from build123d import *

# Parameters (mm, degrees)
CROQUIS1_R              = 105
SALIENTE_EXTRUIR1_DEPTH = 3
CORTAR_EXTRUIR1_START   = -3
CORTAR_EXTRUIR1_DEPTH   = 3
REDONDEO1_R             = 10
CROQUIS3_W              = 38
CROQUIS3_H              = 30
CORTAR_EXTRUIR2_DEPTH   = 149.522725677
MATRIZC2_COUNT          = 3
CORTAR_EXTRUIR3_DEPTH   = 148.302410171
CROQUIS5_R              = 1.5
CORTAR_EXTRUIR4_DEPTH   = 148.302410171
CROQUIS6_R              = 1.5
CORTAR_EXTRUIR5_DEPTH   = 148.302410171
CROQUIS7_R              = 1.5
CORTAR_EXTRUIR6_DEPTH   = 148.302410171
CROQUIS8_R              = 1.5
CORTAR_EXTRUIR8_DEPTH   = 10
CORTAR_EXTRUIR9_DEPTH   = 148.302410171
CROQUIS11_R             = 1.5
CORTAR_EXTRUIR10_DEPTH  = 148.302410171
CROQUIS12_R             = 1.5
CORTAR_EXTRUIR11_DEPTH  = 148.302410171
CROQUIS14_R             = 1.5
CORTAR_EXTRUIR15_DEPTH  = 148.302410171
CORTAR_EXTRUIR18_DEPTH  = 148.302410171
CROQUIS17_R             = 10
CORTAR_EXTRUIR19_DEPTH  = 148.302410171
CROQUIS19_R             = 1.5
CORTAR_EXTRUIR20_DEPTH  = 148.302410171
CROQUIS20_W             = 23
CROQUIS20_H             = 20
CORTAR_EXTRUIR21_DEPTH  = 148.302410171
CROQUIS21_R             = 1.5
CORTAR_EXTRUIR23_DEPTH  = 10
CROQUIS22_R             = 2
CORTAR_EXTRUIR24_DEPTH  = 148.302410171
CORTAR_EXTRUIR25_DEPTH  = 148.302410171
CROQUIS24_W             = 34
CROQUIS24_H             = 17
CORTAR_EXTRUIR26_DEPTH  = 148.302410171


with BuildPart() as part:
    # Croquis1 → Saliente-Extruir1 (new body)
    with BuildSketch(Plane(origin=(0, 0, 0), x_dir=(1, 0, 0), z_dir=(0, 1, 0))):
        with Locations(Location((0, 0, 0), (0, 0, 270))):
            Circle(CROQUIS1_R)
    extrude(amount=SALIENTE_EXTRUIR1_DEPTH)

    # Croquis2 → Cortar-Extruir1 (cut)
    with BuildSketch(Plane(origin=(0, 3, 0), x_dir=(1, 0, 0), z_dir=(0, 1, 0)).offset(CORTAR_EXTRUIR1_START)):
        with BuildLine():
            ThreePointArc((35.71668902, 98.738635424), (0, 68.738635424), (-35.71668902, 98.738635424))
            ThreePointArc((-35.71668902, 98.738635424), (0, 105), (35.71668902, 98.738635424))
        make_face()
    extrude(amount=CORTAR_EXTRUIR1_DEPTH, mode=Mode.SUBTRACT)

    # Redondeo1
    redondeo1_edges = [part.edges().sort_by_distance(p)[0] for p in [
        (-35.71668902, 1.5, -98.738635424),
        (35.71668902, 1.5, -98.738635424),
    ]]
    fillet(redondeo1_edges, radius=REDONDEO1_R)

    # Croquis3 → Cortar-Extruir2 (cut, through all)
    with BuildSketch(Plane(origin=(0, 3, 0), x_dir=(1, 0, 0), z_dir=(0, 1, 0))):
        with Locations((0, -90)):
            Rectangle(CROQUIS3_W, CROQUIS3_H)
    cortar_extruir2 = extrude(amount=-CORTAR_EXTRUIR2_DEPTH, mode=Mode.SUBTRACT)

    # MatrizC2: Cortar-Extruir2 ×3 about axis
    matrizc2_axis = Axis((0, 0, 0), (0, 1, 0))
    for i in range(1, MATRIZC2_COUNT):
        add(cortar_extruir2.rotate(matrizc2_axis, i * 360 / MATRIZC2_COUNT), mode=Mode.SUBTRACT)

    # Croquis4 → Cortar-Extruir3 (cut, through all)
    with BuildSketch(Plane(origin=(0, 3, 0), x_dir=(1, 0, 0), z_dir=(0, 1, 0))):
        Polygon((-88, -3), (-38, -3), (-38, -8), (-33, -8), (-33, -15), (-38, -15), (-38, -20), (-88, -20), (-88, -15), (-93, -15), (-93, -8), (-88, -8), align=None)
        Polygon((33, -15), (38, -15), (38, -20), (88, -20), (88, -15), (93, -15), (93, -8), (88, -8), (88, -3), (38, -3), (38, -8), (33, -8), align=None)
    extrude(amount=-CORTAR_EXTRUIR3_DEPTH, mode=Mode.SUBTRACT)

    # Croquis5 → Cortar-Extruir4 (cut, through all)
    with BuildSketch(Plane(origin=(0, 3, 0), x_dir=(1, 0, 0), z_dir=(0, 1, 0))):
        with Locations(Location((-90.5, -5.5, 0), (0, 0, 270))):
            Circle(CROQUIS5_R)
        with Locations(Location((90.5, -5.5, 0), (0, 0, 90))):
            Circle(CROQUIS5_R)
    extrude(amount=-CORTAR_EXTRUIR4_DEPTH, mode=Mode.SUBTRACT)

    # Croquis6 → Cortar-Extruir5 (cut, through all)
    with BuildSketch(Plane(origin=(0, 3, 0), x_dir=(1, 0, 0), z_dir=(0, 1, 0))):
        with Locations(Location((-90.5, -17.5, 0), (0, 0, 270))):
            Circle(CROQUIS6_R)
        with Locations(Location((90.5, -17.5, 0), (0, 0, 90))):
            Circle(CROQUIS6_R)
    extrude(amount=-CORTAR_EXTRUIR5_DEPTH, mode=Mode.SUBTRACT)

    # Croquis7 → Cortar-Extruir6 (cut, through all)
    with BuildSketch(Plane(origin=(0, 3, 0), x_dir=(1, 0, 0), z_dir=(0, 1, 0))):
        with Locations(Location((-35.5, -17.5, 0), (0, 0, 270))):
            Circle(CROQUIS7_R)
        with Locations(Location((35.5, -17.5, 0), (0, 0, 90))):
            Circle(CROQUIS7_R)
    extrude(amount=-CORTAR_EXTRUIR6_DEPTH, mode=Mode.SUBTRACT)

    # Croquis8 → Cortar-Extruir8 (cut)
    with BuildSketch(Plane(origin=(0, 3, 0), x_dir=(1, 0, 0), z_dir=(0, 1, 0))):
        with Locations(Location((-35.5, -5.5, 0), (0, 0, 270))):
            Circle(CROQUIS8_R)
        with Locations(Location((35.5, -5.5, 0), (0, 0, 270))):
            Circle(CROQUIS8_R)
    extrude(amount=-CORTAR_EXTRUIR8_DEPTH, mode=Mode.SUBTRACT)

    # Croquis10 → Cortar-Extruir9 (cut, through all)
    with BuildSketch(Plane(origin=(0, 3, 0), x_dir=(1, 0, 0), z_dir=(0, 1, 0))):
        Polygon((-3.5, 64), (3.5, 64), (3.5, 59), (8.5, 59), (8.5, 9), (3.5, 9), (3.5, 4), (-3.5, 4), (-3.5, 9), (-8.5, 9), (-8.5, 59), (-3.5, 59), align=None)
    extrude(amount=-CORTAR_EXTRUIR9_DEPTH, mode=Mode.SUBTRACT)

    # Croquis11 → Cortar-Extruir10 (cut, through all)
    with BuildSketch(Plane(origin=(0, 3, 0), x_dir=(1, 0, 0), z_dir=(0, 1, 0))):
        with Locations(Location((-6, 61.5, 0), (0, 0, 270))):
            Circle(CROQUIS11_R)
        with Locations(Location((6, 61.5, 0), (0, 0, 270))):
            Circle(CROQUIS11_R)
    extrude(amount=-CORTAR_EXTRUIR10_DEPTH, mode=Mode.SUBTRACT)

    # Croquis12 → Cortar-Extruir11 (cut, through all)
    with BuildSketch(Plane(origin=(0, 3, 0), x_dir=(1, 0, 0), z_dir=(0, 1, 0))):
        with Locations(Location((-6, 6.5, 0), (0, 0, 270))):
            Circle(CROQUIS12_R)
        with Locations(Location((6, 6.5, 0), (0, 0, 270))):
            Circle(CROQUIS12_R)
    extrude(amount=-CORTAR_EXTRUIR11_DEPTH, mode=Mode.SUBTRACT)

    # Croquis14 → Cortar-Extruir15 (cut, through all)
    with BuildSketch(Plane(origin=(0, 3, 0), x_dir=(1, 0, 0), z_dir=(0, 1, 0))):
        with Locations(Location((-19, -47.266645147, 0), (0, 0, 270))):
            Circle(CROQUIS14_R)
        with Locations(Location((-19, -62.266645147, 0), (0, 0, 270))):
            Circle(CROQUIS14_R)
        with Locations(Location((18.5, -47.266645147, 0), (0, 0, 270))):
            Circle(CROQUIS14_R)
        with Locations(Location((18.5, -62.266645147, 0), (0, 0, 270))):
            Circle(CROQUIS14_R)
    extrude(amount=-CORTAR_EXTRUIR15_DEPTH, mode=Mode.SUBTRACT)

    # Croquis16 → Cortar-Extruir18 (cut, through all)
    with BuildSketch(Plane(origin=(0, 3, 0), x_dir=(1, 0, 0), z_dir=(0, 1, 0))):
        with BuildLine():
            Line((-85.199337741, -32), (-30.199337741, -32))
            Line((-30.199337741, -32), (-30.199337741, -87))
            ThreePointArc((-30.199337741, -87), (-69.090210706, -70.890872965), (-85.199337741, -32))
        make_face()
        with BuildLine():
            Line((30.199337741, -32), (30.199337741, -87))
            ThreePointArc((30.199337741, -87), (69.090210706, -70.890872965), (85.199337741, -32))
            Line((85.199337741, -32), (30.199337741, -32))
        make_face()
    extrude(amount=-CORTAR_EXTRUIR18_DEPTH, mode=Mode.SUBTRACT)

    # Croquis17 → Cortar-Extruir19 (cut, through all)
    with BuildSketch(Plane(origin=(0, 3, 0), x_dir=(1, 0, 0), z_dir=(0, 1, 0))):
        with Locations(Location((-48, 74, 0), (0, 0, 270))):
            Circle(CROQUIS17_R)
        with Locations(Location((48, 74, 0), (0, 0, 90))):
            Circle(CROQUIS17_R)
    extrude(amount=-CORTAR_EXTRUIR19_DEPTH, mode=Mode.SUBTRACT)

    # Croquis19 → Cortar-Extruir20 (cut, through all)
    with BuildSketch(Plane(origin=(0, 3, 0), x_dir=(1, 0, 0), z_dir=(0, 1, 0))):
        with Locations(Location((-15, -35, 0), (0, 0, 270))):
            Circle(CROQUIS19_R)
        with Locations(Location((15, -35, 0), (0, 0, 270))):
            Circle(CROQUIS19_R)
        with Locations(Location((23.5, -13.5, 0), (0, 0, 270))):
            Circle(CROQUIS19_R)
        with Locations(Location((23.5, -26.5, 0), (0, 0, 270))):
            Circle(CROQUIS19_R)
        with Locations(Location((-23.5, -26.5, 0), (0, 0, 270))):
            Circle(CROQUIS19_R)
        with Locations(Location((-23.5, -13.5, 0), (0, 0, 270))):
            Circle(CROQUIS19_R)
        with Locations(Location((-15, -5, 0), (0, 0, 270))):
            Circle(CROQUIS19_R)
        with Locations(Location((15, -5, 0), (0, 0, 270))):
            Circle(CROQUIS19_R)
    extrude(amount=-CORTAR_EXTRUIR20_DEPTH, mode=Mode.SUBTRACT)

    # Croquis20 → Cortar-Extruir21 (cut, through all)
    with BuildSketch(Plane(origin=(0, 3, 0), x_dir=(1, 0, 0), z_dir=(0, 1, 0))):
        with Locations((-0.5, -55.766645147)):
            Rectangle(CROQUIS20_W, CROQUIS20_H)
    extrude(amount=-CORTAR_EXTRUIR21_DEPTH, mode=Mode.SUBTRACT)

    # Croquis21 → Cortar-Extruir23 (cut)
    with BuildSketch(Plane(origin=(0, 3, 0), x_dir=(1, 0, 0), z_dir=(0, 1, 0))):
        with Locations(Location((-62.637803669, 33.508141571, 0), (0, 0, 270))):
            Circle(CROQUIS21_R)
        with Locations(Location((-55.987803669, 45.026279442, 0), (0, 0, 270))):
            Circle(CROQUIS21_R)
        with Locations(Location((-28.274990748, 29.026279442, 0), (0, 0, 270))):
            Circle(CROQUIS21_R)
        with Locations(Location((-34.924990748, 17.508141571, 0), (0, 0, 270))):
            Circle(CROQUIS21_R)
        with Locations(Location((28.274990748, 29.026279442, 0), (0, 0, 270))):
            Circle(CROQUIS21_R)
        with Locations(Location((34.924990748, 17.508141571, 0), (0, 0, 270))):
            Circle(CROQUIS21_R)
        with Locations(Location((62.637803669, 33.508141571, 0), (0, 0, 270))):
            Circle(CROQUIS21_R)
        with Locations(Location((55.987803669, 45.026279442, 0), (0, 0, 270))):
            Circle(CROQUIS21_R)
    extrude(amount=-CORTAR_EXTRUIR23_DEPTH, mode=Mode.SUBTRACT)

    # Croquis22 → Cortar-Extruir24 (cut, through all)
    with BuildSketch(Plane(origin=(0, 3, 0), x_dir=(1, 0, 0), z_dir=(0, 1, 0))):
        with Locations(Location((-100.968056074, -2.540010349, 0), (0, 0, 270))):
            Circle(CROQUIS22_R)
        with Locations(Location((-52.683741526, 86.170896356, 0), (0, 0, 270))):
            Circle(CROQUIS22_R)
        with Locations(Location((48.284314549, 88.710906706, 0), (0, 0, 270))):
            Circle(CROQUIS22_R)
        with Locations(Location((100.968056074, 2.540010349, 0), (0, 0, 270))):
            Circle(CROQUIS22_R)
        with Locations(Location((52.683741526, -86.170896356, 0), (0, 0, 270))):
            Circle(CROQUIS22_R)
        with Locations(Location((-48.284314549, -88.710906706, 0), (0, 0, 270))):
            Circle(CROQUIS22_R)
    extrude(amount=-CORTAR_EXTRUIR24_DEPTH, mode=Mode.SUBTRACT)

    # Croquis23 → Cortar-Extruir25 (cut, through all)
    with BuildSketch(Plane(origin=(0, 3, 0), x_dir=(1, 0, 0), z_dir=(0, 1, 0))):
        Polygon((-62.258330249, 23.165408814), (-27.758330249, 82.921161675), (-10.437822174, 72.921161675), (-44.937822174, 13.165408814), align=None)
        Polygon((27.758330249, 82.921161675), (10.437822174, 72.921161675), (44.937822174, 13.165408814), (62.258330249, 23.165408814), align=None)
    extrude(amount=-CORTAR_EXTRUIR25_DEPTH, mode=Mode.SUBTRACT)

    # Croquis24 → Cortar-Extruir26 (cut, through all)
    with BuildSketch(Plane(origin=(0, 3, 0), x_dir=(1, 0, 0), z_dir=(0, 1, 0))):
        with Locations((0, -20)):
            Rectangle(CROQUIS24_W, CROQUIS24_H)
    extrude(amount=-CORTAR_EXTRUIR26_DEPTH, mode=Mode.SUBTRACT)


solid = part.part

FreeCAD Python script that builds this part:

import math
import FreeCAD as App
import Part
import Sketcher
from FreeCAD import Vector
Q = App.Units.Quantity


def edges_at(feature, points):
    """Names of the edges that pass closest to the given points."""
    edges = feature.Shape.Edges
    near = lambda p: min(range(len(edges)), key=lambda i: edges[i].distToShape(Part.Vertex(*p))[0])
    return sorted({f"Edge{near(p) + 1}" for p in points})


def add_polygon(sketch, points):
    """Adds a closed chain of lines whose ends are joined by coincident constraints."""
    first, n = sketch.GeometryCount, len(points)
    for a, b in zip(points, points[1:] + points[:1]):
        sketch.addGeometry(Part.LineSegment(App.Vector(*a, 0), App.Vector(*b, 0)), False)
    for i in range(n):
        sketch.addConstraint(Sketcher.Constraint("Coincident", first + i, 2, first + (i + 1) % n, 1))

doc = App.newDocument("Part")
body = doc.addObject("PartDesign::Body", "Body")

sketch1 = body.newObject("Sketcher::SketchObject", "Sketch")
sketch1.AttachmentSupport = (doc.getObject("XZ_Plane"), [""])
sketch1.MapMode = "FlatFace"
sketch1.addGeometry(Part.Circle(Vector(0, 0, 0), Vector(0, 0, 1), 105), False)
sketch1.addConstraint(Sketcher.Constraint("Coincident", 0, 3, -1, 1))
sketch1.addConstraint(Sketcher.Constraint("Diameter", 0, Q("210 mm")))
pad1 = body.newObject("PartDesign::Pad", "Pad")
pad1.Profile = sketch1
pad1.Length = 3
pad1.Reversed = True

sketch2 = body.newObject("Sketcher::SketchObject", "Sketch001")
sketch2.AttachmentSupport = (doc.getObject("XZ_Plane"), [""])
sketch2.MapMode = "FlatFace"
sketch2.addGeometry(Part.ArcOfCircle(Part.Circle(Vector(0, -105, 0), Vector(0, 0, 1), 36), math.radians(10), math.radians(170)), False)
sketch2.addGeometry(Part.ArcOfCircle(Part.Circle(Vector(0, 0, 0), Vector(0, 0, 1), 105), math.radians(-110), math.radians(-70)), False)
sketch2.addConstraint(Sketcher.Constraint("Coincident", 0, 1, 1, 2))
sketch2.addConstraint(Sketcher.Constraint("Coincident", 1, 1, 0, 2))
sketch2.addConstraint(Sketcher.Constraint("Coincident", 1, 3, -1, 1))
sketch2.addConstraint(Sketcher.Constraint("PointOnObject", 0, 3, -2))
sketch2.addConstraint(Sketcher.Constraint("Radius", 1, Q("105 mm")))
sketch2.addConstraint(Sketcher.Constraint("DistanceY", 0, 3, -1, 1, Q("105 mm")))
sketch2.addConstraint(Sketcher.Constraint("Radius", 0, Q("36.261365 mm")))
pocket1 = body.newObject("PartDesign::Pocket", "Pocket")
pocket1.Profile = sketch2
pocket1.Length = 3
doc.recompute()

fillet = body.newObject("PartDesign::Fillet", "Fillet")
fillet.Base = (pocket1, edges_at(pocket1, [(-35.717, 1.5, -98.739), (35.717, 1.5, -98.739)]))
fillet.Radius = 10

sketch3 = body.newObject("Sketcher::SketchObject", "Sketch002")
sketch3.AttachmentSupport = (doc.getObject("XZ_Plane"), [""])
sketch3.MapMode = "FlatFace"
sketch3.AttachmentOffset = App.Placement(Vector(0, 0, -3), App.Rotation())
add_polygon(sketch3, [(-19, 75), (-19, 105), (19, 105), (19, 75)])
sketch3.addConstraint(Sketcher.Constraint("Vertical", 0))
sketch3.addConstraint(Sketcher.Constraint("Horizontal", 1))
sketch3.addConstraint(Sketcher.Constraint("Vertical", 2))
sketch3.addConstraint(Sketcher.Constraint("Horizontal", 3))
sketch3.addConstraint(Sketcher.Constraint("DistanceX", 1, 1, 1, 2, Q("38 mm")))
sketch3.addConstraint(Sketcher.Constraint("DistanceY", 0, 1, 0, 2, Q("30 mm")))
sketch3.addConstraint(Sketcher.Constraint("DistanceX", 0, 2, -1, 1, Q("19 mm")))
sketch3.addConstraint(Sketcher.Constraint("DistanceY", -1, 1, 0, 2, Q("105 mm")))
pocket2 = body.newObject("PartDesign::Pocket", "Pocket001")
pocket2.Profile = sketch3
pocket2.Type = "ThroughAll"
pocket2.Reversed = True
doc.recompute()

polarpattern = body.newObject("PartDesign::PolarPattern", "PolarPattern")
polarpattern.Originals = [pocket2]
polarpattern.Axis = (doc.getObject("Y_Axis"), [""])
polarpattern.Angle = 360
polarpattern.Occurrences = 3
body.Tip = polarpattern

sketch4 = body.newObject("Sketcher::SketchObject", "Sketch003")
sketch4.AttachmentSupport = (doc.getObject("XZ_Plane"), [""])
sketch4.MapMode = "FlatFace"
sketch4.AttachmentOffset = App.Placement(Vector(0, 0, -3), App.Rotation())
add_polygon(sketch4, [(-38, 3), (-88, 3), (-88, 8), (-93, 8), (-93, 15), (-88, 15), (-88, 20), (-38, 20), (-38, 15), (-33, 15), (-33, 8), (-38, 8)])
add_polygon(sketch4, [(33, 15), (38, 15), (38, 20), (88, 20), (88, 15), (93, 15), (93, 8), (88, 8), (88, 3), (38, 3), (38, 8), (33, 8)])
sketch4.addConstraint(Sketcher.Constraint("Horizontal", 0))
sketch4.addConstraint(Sketcher.Constraint("Vertical", 1))
sketch4.addConstraint(Sketcher.Constraint("Horizontal", 2))
sketch4.addConstraint(Sketcher.Constraint("Vertical", 3))
sketch4.addConstraint(Sketcher.Constraint("Horizontal", 4))
sketch4.addConstraint(Sketcher.Constraint("Vertical", 5))
sketch4.addConstraint(Sketcher.Constraint("Horizontal", 6))
sketch4.addConstraint(Sketcher.Constraint("Vertical", 7))
sketch4.addConstraint(Sketcher.Constraint("Horizontal", 8))
sketch4.addConstraint(Sketcher.Constraint("Vertical", 9))
sketch4.addConstraint(Sketcher.Constraint("Horizontal", 10))
sketch4.addConstraint(Sketcher.Constraint("Vertical", 11))
sketch4.addConstraint(Sketcher.Constraint("Horizontal", 12))
sketch4.addConstraint(Sketcher.Constraint("Vertical", 13))
sketch4.addConstraint(Sketcher.Constraint("Horizontal", 14))
sketch4.addConstraint(Sketcher.Constraint("Vertical", 15))
sketch4.addConstraint(Sketcher.Constraint("Horizontal", 16))
sketch4.addConstraint(Sketcher.Constraint("Vertical", 17))
sketch4.addConstraint(Sketcher.Constraint("Horizontal", 18))
sketch4.addConstraint(Sketcher.Constraint("Vertical", 19))
sketch4.addConstraint(Sketcher.Constraint("Horizontal", 20))
sketch4.addConstraint(Sketcher.Constraint("Vertical", 21))
sketch4.addConstraint(Sketcher.Constraint("Horizontal", 22))
sketch4.addConstraint(Sketcher.Constraint("Vertical", 23))
sketch4.addConstraint(Sketcher.Constraint("Symmetric", 7, 2, 12, 2, -2))
sketch4.addConstraint(Sketcher.Constraint("Symmetric", 5, 2, 14, 2, -2))
sketch4.addConstraint(Sketcher.Constraint("Symmetric", 3, 2, 16, 2, -2))
sketch4.addConstraint(Sketcher.Constraint("Symmetric", 1, 2, 18, 2, -2))
sketch4.addConstraint(Sketcher.Constraint("Symmetric", 11, 2, 20, 2, -2))
sketch4.addConstraint(Sketcher.Constraint("Symmetric", 9, 2, 22, 2, -2))
sketch4.addConstraint(Sketcher.Constraint("Horizontal", 4, 2, 7, 2))
sketch4.addConstraint(Sketcher.Constraint("Horizontal", 2, 2, 9, 2))
sketch4.addConstraint(Sketcher.Constraint("Vertical", 1, 2, 4, 2))
sketch4.addConstraint(Sketcher.Constraint("Vertical", 7, 2, 10, 2))
sketch4.addConstraint(Sketcher.Constraint("Equal", 4, 8))
sketch4.addConstraint(Sketcher.Constraint("Equal", 22, 1))
sketch4.addConstraint(Sketcher.Constraint("Equal", 1, 5))
sketch4.addConstraint(Sketcher.Constraint("DistanceX", 0, 2, 0, 1, Q("50 mm")))
sketch4.addConstraint(Sketcher.Constraint("DistanceX", 2, 2, 2, 1, Q("5 mm")))
sketch4.addConstraint(Sketcher.Constraint("DistanceY", 3, 1, 3, 2, Q("7 mm")))
sketch4.addConstraint(Sketcher.Constraint("DistanceX", 0, 2, -1, 1, Q("88 mm")))
sketch4.addConstraint(Sketcher.Constraint("DistanceY", -1, 1, 0, 2, Q("3 mm")))
pocket3 = body.newObject("PartDesign::Pocket", "Pocket002")
pocket3.Profile = sketch4
pocket3.Type = "ThroughAll"
pocket3.Reversed = True

sketch5 = body.newObject("Sketcher::SketchObject", "Sketch004")
sketch5.AttachmentSupport = (doc.getObject("XZ_Plane"), [""])
sketch5.MapMode = "FlatFace"
sketch5.AttachmentOffset = App.Placement(Vector(0, 0, -3), App.Rotation())
sketch5.addGeometry(Part.Circle(Vector(-90.5, 5.5, 0), Vector(0, 0, 1), 1.5), False)
sketch5.addGeometry(Part.Circle(Vector(90.5, 5.5, 0), Vector(0, 0, 1), 1.5), False)
sketch5.addConstraint(Sketcher.Constraint("Equal", 0, 1))
sketch5.addConstraint(Sketcher.Constraint("Symmetric", 0, 3, 1, 3, -2))
sketch5.addConstraint(Sketcher.Constraint("Diameter", 0, Q("3 mm")))
sketch5.addConstraint(Sketcher.Constraint("DistanceX", 0, 3, 1, 3, Q("181 mm")))
sketch5.addConstraint(Sketcher.Constraint("DistanceY", -1, 1, 0, 3, Q("5.5 mm")))
pocket4 = body.newObject("PartDesign::Pocket", "Pocket003")
pocket4.Profile = sketch5
pocket4.Type = "ThroughAll"
pocket4.Reversed = True

sketch6 = body.newObject("Sketcher::SketchObject", "Sketch005")
sketch6.AttachmentSupport = (doc.getObject("XZ_Plane"), [""])
sketch6.MapMode = "FlatFace"
sketch6.AttachmentOffset = App.Placement(Vector(0, 0, -3), App.Rotation())
sketch6.addGeometry(Part.Circle(Vector(-90.5, 17.5, 0), Vector(0, 0, 1), 1.5), False)
sketch6.addGeometry(Part.Circle(Vector(90.5, 17.5, 0), Vector(0, 0, 1), 1.5), False)
sketch6.addConstraint(Sketcher.Constraint("Equal", 0, 1))
sketch6.addConstraint(Sketcher.Constraint("Symmetric", 0, 3, 1, 3, -2))
sketch6.addConstraint(Sketcher.Constraint("Diameter", 0, Q("3 mm")))
sketch6.addConstraint(Sketcher.Constraint("DistanceX", 0, 3, 1, 3, Q("181 mm")))
sketch6.addConstraint(Sketcher.Constraint("DistanceY", -1, 1, 0, 3, Q("17.5 mm")))
pocket5 = body.newObject("PartDesign::Pocket", "Pocket004")
pocket5.Profile = sketch6
pocket5.Type = "ThroughAll"
pocket5.Reversed = True

sketch7 = body.newObject("Sketcher::SketchObject", "Sketch006")
sketch7.AttachmentSupport = (doc.getObject("XZ_Plane"), [""])
sketch7.MapMode = "FlatFace"
sketch7.AttachmentOffset = App.Placement(Vector(0, 0, -3), App.Rotation())
sketch7.addGeometry(Part.Circle(Vector(-35.5, 17.5, 0), Vector(0, 0, 1), 1.5), False)
sketch7.addGeometry(Part.Circle(Vector(35.5, 17.5, 0), Vector(0, 0, 1), 1.5), False)
sketch7.addConstraint(Sketcher.Constraint("Equal", 0, 1))
sketch7.addConstraint(Sketcher.Constraint("Symmetric", 0, 3, 1, 3, -2))
sketch7.addConstraint(Sketcher.Constraint("Diameter", 0, Q("3 mm")))
sketch7.addConstraint(Sketcher.Constraint("DistanceX", 0, 3, 1, 3, Q("71 mm")))
sketch7.addConstraint(Sketcher.Constraint("DistanceY", -1, 1, 0, 3, Q("17.5 mm")))
pocket6 = body.newObject("PartDesign::Pocket", "Pocket005")
pocket6.Profile = sketch7
pocket6.Type = "ThroughAll"
pocket6.Reversed = True

sketch8 = body.newObject("Sketcher::SketchObject", "Sketch007")
sketch8.AttachmentSupport = (doc.getObject("XZ_Plane"), [""])
sketch8.MapMode = "FlatFace"
sketch8.AttachmentOffset = App.Placement(Vector(0, 0, -3), App.Rotation())
sketch8.addGeometry(Part.Circle(Vector(-35.5, 5.5, 0), Vector(0, 0, 1), 1.5), False)
sketch8.addGeometry(Part.Circle(Vector(35.5, 5.5, 0), Vector(0, 0, 1), 1.5), False)
sketch8.addConstraint(Sketcher.Constraint("Equal", 0, 1))
sketch8.addConstraint(Sketcher.Constraint("Symmetric", 0, 3, 1, 3, -2))
sketch8.addConstraint(Sketcher.Constraint("Diameter", 0, Q("3 mm")))
sketch8.addConstraint(Sketcher.Constraint("DistanceX", 0, 3, 1, 3, Q("71 mm")))
sketch8.addConstraint(Sketcher.Constraint("DistanceY", -1, 1, 0, 3, Q("5.5 mm")))
pocket7 = body.newObject("PartDesign::Pocket", "Pocket006")
pocket7.Profile = sketch8
pocket7.Length = 10
pocket7.Reversed = True

sketch9 = body.newObject("Sketcher::SketchObject", "Sketch008")
sketch9.AttachmentSupport = (doc.getObject("XZ_Plane"), [""])
sketch9.MapMode = "FlatFace"
sketch9.AttachmentOffset = App.Placement(Vector(0, 0, -3), App.Rotation())
add_polygon(sketch9, [(4, -64), (-4, -64), (-4, -59), (-8, -59), (-8, -9), (-4, -9), (-4, -4), (4, -4), (4, -9), (8, -9), (8, -59), (4, -59)])
sketch9.addConstraint(Sketcher.Constraint("Horizontal", 0))
sketch9.addConstraint(Sketcher.Constraint("Vertical", 1))
sketch9.addConstraint(Sketcher.Constraint("Horizontal", 2))
sketch9.addConstraint(Sketcher.Constraint("Vertical", 3))
sketch9.addConstraint(Sketcher.Constraint("Horizontal", 4))
sketch9.addConstraint(Sketcher.Constraint("Vertical", 5))
sketch9.addConstraint(Sketcher.Constraint("Horizontal", 6))
sketch9.addConstraint(Sketcher.Constraint("Vertical", 7))
sketch9.addConstraint(Sketcher.Constraint("Horizontal", 8))
sketch9.addConstraint(Sketcher.Constraint("Vertical", 9))
sketch9.addConstraint(Sketcher.Constraint("Horizontal", 10))
sketch9.addConstraint(Sketcher.Constraint("Vertical", 11))
sketch9.addConstraint(Sketcher.Constraint("Symmetric", 4, 2, 7, 2, -2))
sketch9.addConstraint(Sketcher.Constraint("Symmetric", 2, 2, 9, 2, -2))
sketch9.addConstraint(Sketcher.Constraint("Vertical", 1, 2, 4, 2))
sketch9.addConstraint(Sketcher.Constraint("Vertical", 7, 2, 10, 2))
sketch9.addConstraint(Sketcher.Constraint("Equal", 10, 1))
sketch9.addConstraint(Sketcher.Constraint("Equal", 1, 5))
sketch9.addConstraint(Sketcher.Constraint("DistanceX", 0, 2, 0, 1, Q("7 mm")))
sketch9.addConstraint(Sketcher.Constraint("DistanceX", 2, 2, 2, 1, Q("5 mm")))
sketch9.addConstraint(Sketcher.Constraint("DistanceY", 3, 1, 3, 2, Q("50 mm")))
sketch9.addConstraint(Sketcher.Constraint("DistanceY", 0, 2, -1, 1, Q("64 mm")))
pocket8 = body.newObject("PartDesign::Pocket", "Pocket007")
pocket8.Profile = sketch9
pocket8.Type = "ThroughAll"
pocket8.Reversed = True

sketch10 = body.newObject("Sketcher::SketchObject", "Sketch009")
sketch10.AttachmentSupport = (doc.getObject("XZ_Plane"), [""])
sketch10.MapMode = "FlatFace"
sketch10.AttachmentOffset = App.Placement(Vector(0, 0, -3), App.Rotation())
sketch10.addGeometry(Part.Circle(Vector(-6, -61.5, 0), Vector(0, 0, 1), 1.5), False)
sketch10.addGeometry(Part.Circle(Vector(6, -61.5, 0), Vector(0, 0, 1), 1.5), False)
sketch10.addConstraint(Sketcher.Constraint("Equal", 0, 1))
sketch10.addConstraint(Sketcher.Constraint("Symmetric", 0, 3, 1, 3, -2))
sketch10.addConstraint(Sketcher.Constraint("Diameter", 0, Q("3 mm")))
sketch10.addConstraint(Sketcher.Constraint("DistanceX", 0, 3, -1, 1, Q("6 mm")))
sketch10.addConstraint(Sketcher.Constraint("DistanceY", 0, 3, -1, 1, Q("61.5 mm")))
pocket9 = body.newObject("PartDesign::Pocket", "Pocket008")
pocket9.Profile = sketch10
pocket9.Type = "ThroughAll"
pocket9.Reversed = True

sketch11 = body.newObject("Sketcher::SketchObject", "Sketch010")
sketch11.AttachmentSupport = (doc.getObject("XZ_Plane"), [""])
sketch11.MapMode = "FlatFace"
sketch11.AttachmentOffset = App.Placement(Vector(0, 0, -3), App.Rotation())
sketch11.addGeometry(Part.Circle(Vector(-6, -6.5, 0), Vector(0, 0, 1), 1.5), False)
sketch11.addGeometry(Part.Circle(Vector(6, -6.5, 0), Vector(0, 0, 1), 1.5), False)
sketch11.addConstraint(Sketcher.Constraint("Equal", 0, 1))
sketch11.addConstraint(Sketcher.Constraint("Symmetric", 0, 3, 1, 3, -2))
sketch11.addConstraint(Sketcher.Constraint("Diameter", 0, Q("3 mm")))
sketch11.addConstraint(Sketcher.Constraint("DistanceX", 0, 3, -1, 1, Q("6 mm")))
sketch11.addConstraint(Sketcher.Constraint("DistanceY", 0, 3, -1, 1, Q("6.5 mm")))
pocket10 = body.newObject("PartDesign::Pocket", "Pocket009")
pocket10.Profile = sketch11
pocket10.Type = "ThroughAll"
pocket10.Reversed = True

sketch12 = body.newObject("Sketcher::SketchObject", "Sketch011")
sketch12.AttachmentSupport = (doc.getObject("XZ_Plane"), [""])
sketch12.MapMode = "FlatFace"
sketch12.AttachmentOffset = App.Placement(Vector(0, 0, -3), App.Rotation())
sketch12.addGeometry(Part.Circle(Vector(-19, 47.3, 0), Vector(0, 0, 1), 1.5), False)
sketch12.addGeometry(Part.Circle(Vector(-19, 62.3, 0), Vector(0, 0, 1), 1.5), False)
sketch12.addGeometry(Part.Circle(Vector(18.5, 47.3, 0), Vector(0, 0, 1), 1.5), False)
sketch12.addGeometry(Part.Circle(Vector(18.5, 62.3, 0), Vector(0, 0, 1), 1.5), False)
sketch12.addConstraint(Sketcher.Constraint("Equal", 0, 1))
sketch12.addConstraint(Sketcher.Constraint("Equal", 1, 2))
sketch12.addConstraint(Sketcher.Constraint("Equal", 2, 3))
sketch12.addConstraint(Sketcher.Constraint("Horizontal", 0, 3, 2, 3))
sketch12.addConstraint(Sketcher.Constraint("Horizontal", 1, 3, 3, 3))
sketch12.addConstraint(Sketcher.Constraint("Vertical", 0, 3, 1, 3))
sketch12.addConstraint(Sketcher.Constraint("Vertical", 2, 3, 3, 3))
sketch12.addConstraint(Sketcher.Constraint("Diameter", 0, Q("3 mm")))
sketch12.addConstraint(Sketcher.Constraint("DistanceX", 0, 3, -1, 1, Q("19 mm")))
sketch12.addConstraint(Sketcher.Constraint("DistanceY", 0, 3, 1, 3, Q("15 mm")))
sketch12.addConstraint(Sketcher.Constraint("DistanceX", -1, 1, 2, 3, Q("18.5 mm")))
sketch12.addConstraint(Sketcher.Constraint("DistanceY", -1, 1, 0, 3, Q("47.266645 mm")))
pocket11 = body.newObject("PartDesign::Pocket", "Pocket010")
pocket11.Profile = sketch12
pocket11.Type = "ThroughAll"
pocket11.Reversed = True

sketch13 = body.newObject("Sketcher::SketchObject", "Sketch012")
sketch13.AttachmentSupport = (doc.getObject("XZ_Plane"), [""])
sketch13.MapMode = "FlatFace"
sketch13.AttachmentOffset = App.Placement(Vector(0, 0, -3), App.Rotation())
sketch13.addGeometry(Part.LineSegment(Vector(-30, 32, 0), Vector(-85, 32, 0)), False)
sketch13.addGeometry(Part.ArcOfCircle(Part.Circle(Vector(-30, 32, 0), Vector(0, 0, 1), 55), math.radians(90), math.radians(180)), False)
sketch13.addGeometry(Part.LineSegment(Vector(-30, 87, 0), Vector(-30, 32, 0)), False)
sketch13.addGeometry(Part.LineSegment(Vector(30, 32, 0), Vector(30, 87, 0)), False)
sketch13.addGeometry(Part.ArcOfCircle(Part.Circle(Vector(30, 32, 0), Vector(0, 0, 1), 55), math.radians(0), math.radians(90)), False)
sketch13.addGeometry(Part.LineSegment(Vector(85, 32, 0), Vector(30, 32, 0)), False)
sketch13.addConstraint(Sketcher.Constraint("Coincident", 0, 2, 1, 2))
sketch13.addConstraint(Sketcher.Constraint("Coincident", 1, 1, 2, 1))
sketch13.addConstraint(Sketcher.Constraint("Coincident", 2, 2, 0, 1))
sketch13.addConstraint(Sketcher.Constraint("Coincident", 3, 2, 4, 2))
sketch13.addConstraint(Sketcher.Constraint("Coincident", 4, 1, 5, 1))
sketch13.addConstraint(Sketcher.Constraint("Coincident", 5, 2, 3, 1))
sketch13.addConstraint(Sketcher.Constraint("Horizontal", 0))
sketch13.addConstraint(Sketcher.Constraint("Vertical", 2))
sketch13.addConstraint(Sketcher.Constraint("Vertical", 3))
sketch13.addConstraint(Sketcher.Constraint("Horizontal", 5))
sketch13.addConstraint(Sketcher.Constraint("Coincident", 2, 2, 1, 3))
sketch13.addConstraint(Sketcher.Constraint("Coincident", 5, 2, 4, 3))
sketch13.addConstraint(Sketcher.Constraint("Equal", 1, 4))
sketch13.addConstraint(Sketcher.Constraint("Symmetric", 1, 3, 4, 3, -2))
sketch13.addConstraint(Sketcher.Constraint("Radius", 1, Q("55 mm")))
sketch13.addConstraint(Sketcher.Constraint("DistanceY", -1, 1, 1, 3, Q("32 mm")))
sketch13.addConstraint(Sketcher.Constraint("DistanceX", 1, 3, -1, 1, Q("30.199338 mm")))
pocket12 = body.newObject("PartDesign::Pocket", "Pocket011")
pocket12.Profile = sketch13
pocket12.Type = "ThroughAll"
pocket12.Reversed = True

sketch14 = body.newObject("Sketcher::SketchObject", "Sketch013")
sketch14.AttachmentSupport = (doc.getObject("XZ_Plane"), [""])
sketch14.MapMode = "FlatFace"
sketch14.AttachmentOffset = App.Placement(Vector(0, 0, -3), App.Rotation())
sketch14.addGeometry(Part.Circle(Vector(-48, -74, 0), Vector(0, 0, 1), 10), False)
sketch14.addGeometry(Part.Circle(Vector(48, -74, 0), Vector(0, 0, 1), 10), False)
sketch14.addConstraint(Sketcher.Constraint("Equal", 0, 1))
sketch14.addConstraint(Sketcher.Constraint("Symmetric", 0, 3, 1, 3, -2))
sketch14.addConstraint(Sketcher.Constraint("Diameter", 0, Q("20 mm")))
sketch14.addConstraint(Sketcher.Constraint("DistanceX", 0, 3, -1, 1, Q("48 mm")))
sketch14.addConstraint(Sketcher.Constraint("DistanceY", 0, 3, -1, 1, Q("74 mm")))
pocket13 = body.newObject("PartDesign::Pocket", "Pocket012")
pocket13.Profile = sketch14
pocket13.Type = "ThroughAll"
pocket13.Reversed = True

sketch15 = body.newObject("Sketcher::SketchObject", "Sketch014")
sketch15.AttachmentSupport = (doc.getObject("XZ_Plane"), [""])
sketch15.MapMode = "FlatFace"
sketch15.AttachmentOffset = App.Placement(Vector(0, 0, -3), App.Rotation())
sketch15.addGeometry(Part.Circle(Vector(-15, 35, 0), Vector(0, 0, 1), 1.5), False)
sketch15.addGeometry(Part.Circle(Vector(15, 35, 0), Vector(0, 0, 1), 1.5), False)
sketch15.addGeometry(Part.Circle(Vector(23.5, 13.5, 0), Vector(0, 0, 1), 1.5), False)
sketch15.addGeometry(Part.Circle(Vector(23.5, 26.5, 0), Vector(0, 0, 1), 1.5), False)
sketch15.addGeometry(Part.Circle(Vector(-23.5, 26.5, 0), Vector(0, 0, 1), 1.5), False)
sketch15.addGeometry(Part.Circle(Vector(-23.5, 13.5, 0), Vector(0, 0, 1), 1.5), False)
sketch15.addGeometry(Part.Circle(Vector(-15, 5, 0), Vector(0, 0, 1), 1.5), False)
sketch15.addGeometry(Part.Circle(Vector(15, 5, 0), Vector(0, 0, 1), 1.5), False)
sketch15.addConstraint(Sketcher.Constraint("Equal", 0, 1))
sketch15.addConstraint(Sketcher.Constraint("Equal", 1, 2))
sketch15.addConstraint(Sketcher.Constraint("Equal", 2, 3))
sketch15.addConstraint(Sketcher.Constraint("Equal", 3, 4))
sketch15.addConstraint(Sketcher.Constraint("Equal", 4, 5))
sketch15.addConstraint(Sketcher.Constraint("Equal", 5, 6))
sketch15.addConstraint(Sketcher.Constraint("Equal", 6, 7))
sketch15.addConstraint(Sketcher.Constraint("Symmetric", 0, 3, 1, 3, -2))
sketch15.addConstraint(Sketcher.Constraint("Symmetric", 3, 3, 4, 3, -2))
sketch15.addConstraint(Sketcher.Constraint("Symmetric", 2, 3, 5, 3, -2))
sketch15.addConstraint(Sketcher.Constraint("Symmetric", 6, 3, 7, 3, -2))
sketch15.addConstraint(Sketcher.Constraint("Vertical", 2, 3, 3, 3))
sketch15.addConstraint(Sketcher.Constraint("Vertical", 0, 3, 6, 3))
sketch15.addConstraint(Sketcher.Constraint("Diameter", 0, Q("3 mm")))
sketch15.addConstraint(Sketcher.Constraint("DistanceX", 0, 3, -1, 1, Q("15 mm")))
sketch15.addConstraint(Sketcher.Constraint("DistanceY", -1, 1, 0, 3, Q("35 mm")))
sketch15.addConstraint(Sketcher.Constraint("DistanceY", -1, 1, 6, 3, Q("5 mm")))
sketch15.addConstraint(Sketcher.Constraint("DistanceY", 2, 3, 3, 3, Q("13 mm")))
sketch15.addConstraint(Sketcher.Constraint("DistanceX", 4, 3, 3, 3, Q("47 mm")))
sketch15.addConstraint(Sketcher.Constraint("DistanceY", -1, 1, 2, 3, Q("13.5 mm")))
pocket14 = body.newObject("PartDesign::Pocket", "Pocket013")
pocket14.Profile = sketch15
pocket14.Type = "ThroughAll"
pocket14.Reversed = True

sketch16 = body.newObject("Sketcher::SketchObject", "Sketch015")
sketch16.AttachmentSupport = (doc.getObject("XZ_Plane"), [""])
sketch16.MapMode = "FlatFace"
sketch16.AttachmentOffset = App.Placement(Vector(0, 0, -3), App.Rotation())
add_polygon(sketch16, [(-12, 46), (-12, 66), (11, 66), (11, 46)])
sketch16.addConstraint(Sketcher.Constraint("Vertical", 0))
sketch16.addConstraint(Sketcher.Constraint("Horizontal", 1))
sketch16.addConstraint(Sketcher.Constraint("Vertical", 2))
sketch16.addConstraint(Sketcher.Constraint("Horizontal", 3))
sketch16.addConstraint(Sketcher.Constraint("DistanceX", 1, 1, 1, 2, Q("23 mm")))
sketch16.addConstraint(Sketcher.Constraint("DistanceY", 0, 1, 0, 2, Q("20 mm")))
sketch16.addConstraint(Sketcher.Constraint("DistanceX", 0, 2, -1, 1, Q("12 mm")))
sketch16.addConstraint(Sketcher.Constraint("DistanceY", -1, 1, 0, 2, Q("65.766645 mm")))
pocket15 = body.newObject("PartDesign::Pocket", "Pocket014")
pocket15.Profile = sketch16
pocket15.Type = "ThroughAll"
pocket15.Reversed = True

sketch17 = body.newObject("Sketcher::SketchObject", "Sketch016")
sketch17.AttachmentSupport = (doc.getObject("XZ_Plane"), [""])
sketch17.MapMode = "FlatFace"
sketch17.AttachmentOffset = App.Placement(Vector(0, 0, -3), App.Rotation())
sketch17.addGeometry(Part.Circle(Vector(-62.6, -33.5, 0), Vector(0, 0, 1), 1.5), False)
sketch17.addGeometry(Part.Circle(Vector(-56, -45, 0), Vector(0, 0, 1), 1.5), False)
sketch17.addGeometry(Part.Circle(Vector(-28.3, -29, 0), Vector(0, 0, 1), 1.5), False)
sketch17.addGeometry(Part.Circle(Vector(-34.9, -17.5, 0), Vector(0, 0, 1), 1.5), False)
sketch17.addGeometry(Part.Circle(Vector(28.3, -29, 0), Vector(0, 0, 1), 1.5), False)
sketch17.addGeometry(Part.Circle(Vector(34.9, -17.5, 0), Vector(0, 0, 1), 1.5), False)
sketch17.addGeometry(Part.Circle(Vector(62.6, -33.5, 0), Vector(0, 0, 1), 1.5), False)
sketch17.addGeometry(Part.Circle(Vector(56, -45, 0), Vector(0, 0, 1), 1.5), False)
sketch17.addConstraint(Sketcher.Constraint("Equal", 0, 1))
sketch17.addConstraint(Sketcher.Constraint("Equal", 1, 2))
sketch17.addConstraint(Sketcher.Constraint("Equal", 2, 3))
sketch17.addConstraint(Sketcher.Constraint("Equal", 3, 4))
sketch17.addConstraint(Sketcher.Constraint("Equal", 4, 5))
sketch17.addConstraint(Sketcher.Constraint("Equal", 5, 6))
sketch17.addConstraint(Sketcher.Constraint("Equal", 6, 7))
sketch17.addConstraint(Sketcher.Constraint("Symmetric", 2, 3, 4, 3, -2))
sketch17.addConstraint(Sketcher.Constraint("Symmetric", 3, 3, 5, 3, -2))
sketch17.addConstraint(Sketcher.Constraint("Symmetric", 0, 3, 6, 3, -2))
sketch17.addConstraint(Sketcher.Constraint("Symmetric", 1, 3, 7, 3, -2))
sketch17.addConstraint(Sketcher.Constraint("Diameter", 0, Q("3 mm")))
sketch17.addConstraint(Sketcher.Constraint("DistanceY", 1, 3, 2, 3, Q("16 mm")))
sketch17.addConstraint(Sketcher.Constraint("DistanceY", 0, 3, 3, 3, Q("16 mm")))
sketch17.addConstraint(Sketcher.Constraint("DistanceX", 0, 3, 1, 3, Q("6.65 mm")))
sketch17.addConstraint(Sketcher.Constraint("DistanceX", 3, 3, 2, 3, Q("6.65 mm")))
sketch17.addConstraint(Sketcher.Constraint("DistanceY", 0, 3, -1, 1, Q("33.508142 mm")))
sketch17.addConstraint(Sketcher.Constraint("DistanceY", 1, 3, -1, 1, Q("45.026279 mm")))
sketch17.addConstraint(Sketcher.Constraint("DistanceX", 2, 3, -1, 1, Q("28.274991 mm")))
sketch17.addConstraint(Sketcher.Constraint("DistanceX", 0, 3, -1, 1, Q("62.637804 mm")))
pocket16 = body.newObject("PartDesign::Pocket", "Pocket015")
pocket16.Profile = sketch17
pocket16.Length = 10
pocket16.Reversed = True

sketch18 = body.newObject("Sketcher::SketchObject", "Sketch017")
sketch18.AttachmentSupport = (doc.getObject("XZ_Plane"), [""])
sketch18.MapMode = "FlatFace"
sketch18.AttachmentOffset = App.Placement(Vector(0, 0, -3), App.Rotation())
sketch18.addGeometry(Part.Circle(Vector(-101, 2.5, 0), Vector(0, 0, 1), 2), False)
sketch18.addGeometry(Part.Circle(Vector(-52.7, -86.2, 0), Vector(0, 0, 1), 2), False)
sketch18.addGeometry(Part.Circle(Vector(48.3, -88.7, 0), Vector(0, 0, 1), 2), False)
sketch18.addGeometry(Part.Circle(Vector(101, -2.5, 0), Vector(0, 0, 1), 2), False)
sketch18.addGeometry(Part.Circle(Vector(52.7, 86.2, 0), Vector(0, 0, 1), 2), False)
sketch18.addGeometry(Part.Circle(Vector(-48.3, 88.7, 0), Vector(0, 0, 1), 2), False)
sketch18.addConstraint(Sketcher.Constraint("Equal", 0, 1))
sketch18.addConstraint(Sketcher.Constraint("Equal", 1, 2))
sketch18.addConstraint(Sketcher.Constraint("Equal", 2, 3))
sketch18.addConstraint(Sketcher.Constraint("Equal", 3, 4))
sketch18.addConstraint(Sketcher.Constraint("Equal", 4, 5))
sketch18.addConstraint(Sketcher.Constraint("Symmetric", 0, 3, 3, 3, -1, 1))
sketch18.addConstraint(Sketcher.Constraint("Symmetric", 1, 3, 4, 3, -1, 1))
sketch18.addConstraint(Sketcher.Constraint("Symmetric", 2, 3, 5, 3, -1, 1))
sketch18.addConstraint(Sketcher.Constraint("Diameter", 0, Q("4 mm")))
sketch18.addConstraint(Sketcher.Constraint("DistanceY", -1, 1, 0, 3, Q("2.54001 mm")))
sketch18.addConstraint(Sketcher.Constraint("DistanceX", 1, 3, -1, 1, Q("52.683742 mm")))
sketch18.addConstraint(Sketcher.Constraint("DistanceY", 2, 3, 1, 3, Q("2.54001 mm")))
sketch18.addConstraint(Sketcher.Constraint("DistanceX", 0, 3, 2, 3, Q("149.252371 mm")))
sketch18.addConstraint(Sketcher.Constraint("DistanceX", 2, 3, 3, 3, Q("52.683742 mm")))
sketch18.addConstraint(Sketcher.Constraint("DistanceY", 1, 3, -1, 1, Q("86.170896 mm")))
pocket17 = body.newObject("PartDesign::Pocket", "Pocket016")
pocket17.Profile = sketch18
pocket17.Type = "ThroughAll"
pocket17.Reversed = True

sketch19 = body.newObject("Sketcher::SketchObject", "Sketch018")
sketch19.AttachmentSupport = (doc.getObject("XZ_Plane"), [""])
sketch19.MapMode = "FlatFace"
sketch19.AttachmentOffset = App.Placement(Vector(0, 0, -3), App.Rotation())
add_polygon(sketch19, [(-28, -83), (-62, -23), (-45, -13), (-10, -73)])
add_polygon(sketch19, [(28, -83), (10, -73), (45, -13), (62, -23)])
sketch19.addConstraint(Sketcher.Constraint("Symmetric", 2, 2, 4, 2, -2))
sketch19.addConstraint(Sketcher.Constraint("Symmetric", 1, 2, 5, 2, -2))
sketch19.addConstraint(Sketcher.Constraint("Symmetric", 0, 2, 6, 2, -2))
sketch19.addConstraint(Sketcher.Constraint("Symmetric", 3, 2, 7, 2, -2))
sketch19.addConstraint(Sketcher.Constraint("Perpendicular", 0, 1))
sketch19.addConstraint(Sketcher.Constraint("Perpendicular", 1, 2))
sketch19.addConstraint(Sketcher.Constraint("Perpendicular", 2, 3))
sketch19.addConstraint(Sketcher.Constraint("Angle", 0, Q("120 deg")))
sketch19.addConstraint(Sketcher.Constraint("Distance", 0, Q("69 mm")))
sketch19.addConstraint(Sketcher.Constraint("Distance", 1, Q("20 mm")))
sketch19.addConstraint(Sketcher.Constraint("DistanceX", 0, 2, -1, 1, Q("62.25833 mm")))
sketch19.addConstraint(Sketcher.Constraint("DistanceY", 0, 2, -1, 1, Q("23.165409 mm")))
pocket18 = body.newObject("PartDesign::Pocket", "Pocket017")
pocket18.Profile = sketch19
pocket18.Type = "ThroughAll"
pocket18.Reversed = True

sketch20 = body.newObject("Sketcher::SketchObject", "Sketch019")
sketch20.AttachmentSupport = (doc.getObject("XZ_Plane"), [""])
sketch20.MapMode = "FlatFace"
sketch20.AttachmentOffset = App.Placement(Vector(0, 0, -3), App.Rotation())
add_polygon(sketch20, [(-17, 12), (-17, 28), (17, 28), (17, 12)])
sketch20.addConstraint(Sketcher.Constraint("Vertical", 0))
sketch20.addConstraint(Sketcher.Constraint("Horizontal", 1))
sketch20.addConstraint(Sketcher.Constraint("Vertical", 2))
sketch20.addConstraint(Sketcher.Constraint("Horizontal", 3))
sketch20.addConstraint(Sketcher.Constraint("DistanceX", 1, 1, 1, 2, Q("34 mm")))
sketch20.addConstraint(Sketcher.Constraint("DistanceY", 0, 1, 0, 2, Q("17 mm")))
sketch20.addConstraint(Sketcher.Constraint("DistanceX", 0, 2, -1, 1, Q("17 mm")))
sketch20.addConstraint(Sketcher.Constraint("DistanceY", -1, 1, 0, 2, Q("28.5 mm")))
pocket19 = body.newObject("PartDesign::Pocket", "Pocket018")
pocket19.Profile = sketch20
pocket19.Type = "ThroughAll"
pocket19.Reversed = True

doc.recompute()
